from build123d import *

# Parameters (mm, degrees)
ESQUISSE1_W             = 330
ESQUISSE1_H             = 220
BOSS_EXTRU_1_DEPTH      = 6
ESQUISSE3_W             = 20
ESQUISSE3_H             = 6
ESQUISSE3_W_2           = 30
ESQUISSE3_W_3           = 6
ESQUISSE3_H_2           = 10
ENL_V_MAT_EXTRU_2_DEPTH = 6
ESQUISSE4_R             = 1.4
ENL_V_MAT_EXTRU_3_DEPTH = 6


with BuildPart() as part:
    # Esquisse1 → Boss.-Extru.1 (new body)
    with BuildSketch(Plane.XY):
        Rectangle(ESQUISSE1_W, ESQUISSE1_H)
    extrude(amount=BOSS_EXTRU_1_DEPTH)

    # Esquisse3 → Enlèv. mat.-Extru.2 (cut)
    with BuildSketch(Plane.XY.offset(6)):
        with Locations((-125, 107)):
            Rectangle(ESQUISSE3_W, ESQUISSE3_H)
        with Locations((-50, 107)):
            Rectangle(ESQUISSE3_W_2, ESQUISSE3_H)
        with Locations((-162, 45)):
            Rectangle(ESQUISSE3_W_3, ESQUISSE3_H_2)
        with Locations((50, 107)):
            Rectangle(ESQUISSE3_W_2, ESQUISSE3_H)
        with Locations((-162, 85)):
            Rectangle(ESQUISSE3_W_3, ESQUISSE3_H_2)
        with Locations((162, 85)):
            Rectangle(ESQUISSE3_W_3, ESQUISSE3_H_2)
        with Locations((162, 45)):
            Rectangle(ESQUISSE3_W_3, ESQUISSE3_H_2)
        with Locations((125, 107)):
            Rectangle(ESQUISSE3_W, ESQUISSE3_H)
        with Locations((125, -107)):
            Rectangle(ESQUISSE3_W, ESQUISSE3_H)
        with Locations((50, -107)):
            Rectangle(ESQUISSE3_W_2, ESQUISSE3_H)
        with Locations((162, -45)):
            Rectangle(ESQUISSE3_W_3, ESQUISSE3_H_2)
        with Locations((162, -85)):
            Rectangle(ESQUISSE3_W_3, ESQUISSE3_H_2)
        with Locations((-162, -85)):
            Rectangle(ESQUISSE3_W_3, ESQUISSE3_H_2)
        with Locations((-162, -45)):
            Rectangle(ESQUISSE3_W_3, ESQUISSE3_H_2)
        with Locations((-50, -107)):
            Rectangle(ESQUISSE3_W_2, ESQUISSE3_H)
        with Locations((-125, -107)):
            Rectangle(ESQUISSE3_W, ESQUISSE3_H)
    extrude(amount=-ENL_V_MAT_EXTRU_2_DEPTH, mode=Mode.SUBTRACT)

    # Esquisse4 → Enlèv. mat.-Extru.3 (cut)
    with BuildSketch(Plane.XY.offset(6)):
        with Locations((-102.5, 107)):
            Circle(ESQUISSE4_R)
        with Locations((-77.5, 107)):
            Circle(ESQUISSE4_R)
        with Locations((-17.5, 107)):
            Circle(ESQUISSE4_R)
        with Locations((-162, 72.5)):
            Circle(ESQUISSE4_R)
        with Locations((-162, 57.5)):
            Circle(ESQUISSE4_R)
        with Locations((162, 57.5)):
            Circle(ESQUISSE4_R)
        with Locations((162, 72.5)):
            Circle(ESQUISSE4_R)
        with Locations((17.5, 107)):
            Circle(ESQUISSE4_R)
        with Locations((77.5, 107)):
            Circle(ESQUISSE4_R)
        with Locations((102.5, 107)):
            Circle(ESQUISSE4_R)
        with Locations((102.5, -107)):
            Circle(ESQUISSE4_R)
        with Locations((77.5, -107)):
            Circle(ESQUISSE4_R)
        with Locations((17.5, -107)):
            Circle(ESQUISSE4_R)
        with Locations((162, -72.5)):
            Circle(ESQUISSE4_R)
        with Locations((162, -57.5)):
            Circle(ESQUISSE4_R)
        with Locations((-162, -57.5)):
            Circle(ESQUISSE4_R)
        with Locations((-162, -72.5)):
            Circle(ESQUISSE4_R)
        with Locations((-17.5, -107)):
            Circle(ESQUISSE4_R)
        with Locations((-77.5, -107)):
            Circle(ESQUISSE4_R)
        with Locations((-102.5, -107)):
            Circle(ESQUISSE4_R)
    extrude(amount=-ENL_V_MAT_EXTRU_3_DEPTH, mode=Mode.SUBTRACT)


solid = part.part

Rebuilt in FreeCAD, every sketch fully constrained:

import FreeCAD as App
import Part
import Sketcher
from FreeCAD import Vector
Q = App.Units.Quantity

doc = App.newDocument("Part")
body = doc.addObject("PartDesign::Body", "Body")

sketch1 = body.newObject("Sketcher::SketchObject", "Sketch")
sketch1.AttachmentSupport = (doc.getObject("XY_Plane"), [""])
sketch1.MapMode = "FlatFace"
sketch1.addGeometry([
    Part.LineSegment(Vector(-165, 110, 0), Vector(-165, -110, 0)),
    Part.LineSegment(Vector(-165, -110, 0), Vector(165, -110, 0)),
    Part.LineSegment(Vector(165, -110, 0), Vector(165, 110, 0)),
    Part.LineSegment(Vector(165, 110, 0), Vector(-165, 110, 0)),
], False)
sketch1.addConstraint([
    Sketcher.Constraint("Coincident", 0, 2, 1, 1),
    Sketcher.Constraint("Coincident", 1, 2, 2, 1),
    Sketcher.Constraint("Coincident", 2, 2, 3, 1),
    Sketcher.Constraint("Coincident", 3, 2, 0, 1),
    Sketcher.Constraint("Vertical", 0),
    Sketcher.Constraint("Horizontal", 1),
    Sketcher.Constraint("Vertical", 2),
    Sketcher.Constraint("Horizontal", 3),
    Sketcher.Constraint("Symmetric", 0, 2, 2, 2, -1, 1),
    Sketcher.Constraint("DistanceX", 1, 1, 1, 2, Q("330 mm")),
    Sketcher.Constraint("DistanceY", 0, 2, 0, 1, Q("220 mm")),
])
pad1 = body.newObject("PartDesign::Pad", "Pad")
pad1.Profile = sketch1
pad1.Length = 6

sketch2 = body.newObject("Sketcher::SketchObject", "Sketch001")
sketch2.AttachmentSupport = (doc.getObject("XY_Plane"), [""])
sketch2.MapMode = "FlatFace"
sketch2.AttachmentOffset = App.Placement(Vector(0, 0, 6), App.Rotation())
sketch2.addGeometry([
    Part.LineSegment(Vector(-135, 110, 0), Vector(-135, 104, 0)),
    Part.LineSegment(Vector(-135, 104, 0), Vector(-115, 104, 0)),
    Part.LineSegment(Vector(-115, 104, 0), Vector(-115, 110, 0)),
    Part.LineSegment(Vector(-115, 110, 0), Vector(-135, 110, 0)),
    Part.LineSegment(Vector(-65, 110, 0), Vector(-65, 104, 0)),
    Part.LineSegment(Vector(-65, 104, 0), Vector(-35, 104, 0)),
    Part.LineSegment(Vector(-35, 104, 0), Vector(-35, 110, 0)),
    Part.LineSegment(Vector(-35, 110, 0), Vector(-65, 110, 0)),
    Part.LineSegment(Vector(-165, 50, 0), Vector(-165, 40, 0)),
    Part.LineSegment(Vector(-165, 40, 0), Vector(-159, 40, 0)),
    Part.LineSegment(Vector(-159, 40, 0), Vector(-159, 50, 0)),
    Part.LineSegment(Vector(-159, 50, 0), Vector(-165, 50, 0)),
    Part.LineSegment(Vector(35, 110, 0), Vector(35, 104, 0)),
    Part.LineSegment(Vector(35, 104, 0), Vector(65, 104, 0)),
    Part.LineSegment(Vector(65, 104, 0), Vector(65, 110, 0)),
    Part.LineSegment(Vector(65, 110, 0), Vector(35, 110, 0)),
    Part.LineSegment(Vector(-165, 90, 0), Vector(-165, 80, 0)),
    Part.LineSegment(Vector(-165, 80, 0), Vector(-159, 80, 0)),
    Part.LineSegment(Vector(-159, 80, 0), Vector(-159, 90, 0)),
    Part.LineSegment(Vector(-159, 90, 0), Vector(-165, 90, 0)),
    Part.LineSegment(Vector(159, 90, 0), Vector(159, 80, 0)),
    Part.LineSegment(Vector(159, 80, 0), Vector(165, 80, 0)),
    Part.LineSegment(Vector(165, 80, 0), Vector(165, 90, 0)),
    Part.LineSegment(Vector(165, 90, 0), Vector(159, 90, 0)),
    Part.LineSegment(Vector(159, 50, 0), Vector(159, 40, 0)),
    Part.LineSegment(Vector(159, 40, 0), Vector(165, 40, 0)),
    Part.LineSegment(Vector(165, 40, 0), Vector(165, 50, 0)),
    Part.LineSegment(Vector(165, 50, 0), Vector(159, 50, 0)),
    Part.LineSegment(Vector(115, 110, 0), Vector(115, 104, 0)),
    Part.LineSegment(Vector(115, 104, 0), Vector(135, 104, 0)),
    Part.LineSegment(Vector(135, 104, 0), Vector(135, 110, 0)),
    Part.LineSegment(Vector(135, 110, 0), Vector(115, 110, 0)),
    Part.LineSegment(Vector(115, -104, 0), Vector(115, -110, 0)),
    Part.LineSegment(Vector(115, -110, 0), Vector(135, -110, 0)),
    Part.LineSegment(Vector(135, -110, 0), Vector(135, -104, 0)),
    Part.LineSegment(Vector(135, -104, 0), Vector(115, -104, 0)),
    Part.LineSegment(Vector(35, -104, 0), Vector(35, -110, 0)),
    Part.LineSegment(Vector(35, -110, 0), Vector(65, -110, 0)),
    Part.LineSegment(Vector(65, -110, 0), Vector(65, -104, 0)),
    Part.LineSegment(Vector(65, -104, 0), Vector(35, -104, 0)),
    Part.LineSegment(Vector(159, -40, 0), Vector(159, -50, 0)),
    Part.LineSegment(Vector(159, -50, 0), Vector(165, -50, 0)),
    Part.LineSegment(Vector(165, -50, 0), Vector(165, -40, 0)),
    Part.LineSegment(Vector(165, -40, 0), Vector(159, -40, 0)),
    Part.LineSegment(Vector(159, -80, 0), Vector(159, -90, 0)),
    Part.LineSegment(Vector(159, -90, 0), Vector(165, -90, 0)),
    Part.LineSegment(Vector(165, -90, 0), Vector(165, -80, 0)),
    Part.LineSegment(Vector(165, -80, 0), Vector(159, -80, 0)),
    Part.LineSegment(Vector(-165, -80, 0), Vector(-165, -90, 0)),
    Part.LineSegment(Vector(-165, -90, 0), Vector(-159, -90, 0)),
    Part.LineSegment(Vector(-159, -90, 0), Vector(-159, -80, 0)),
    Part.LineSegment(Vector(-159, -80, 0), Vector(-165, -80, 0)),
    Part.LineSegment(Vector(-165, -40, 0), Vector(-165, -50, 0)),
    Part.LineSegment(Vector(-165, -50, 0), Vector(-159, -50, 0)),
    Part.LineSegment(Vector(-159, -50, 0), Vector(-159, -40, 0)),
    Part.LineSegment(Vector(-159, -40, 0), Vector(-165, -40, 0)),
    Part.LineSegment(Vector(-65, -104, 0), Vector(-65, -110, 0)),
    Part.LineSegment(Vector(-65, -110, 0), Vector(-35, -110, 0)),
    Part.LineSegment(Vector(-35, -110, 0), Vector(-35, -104, 0)),
    Part.LineSegment(Vector(-35, -104, 0), Vector(-65, -104, 0)),
    Part.LineSegment(Vector(-135, -104, 0), Vector(-135, -110, 0)),
    Part.LineSegment(Vector(-135, -110, 0), Vector(-115, -110, 0)),
    Part.LineSegment(Vector(-115, -110, 0), Vector(-115, -104, 0)),
    Part.LineSegment(Vector(-115, -104, 0), Vector(-135, -104, 0)),
], False)
sketch2.addConstraint([
    Sketcher.Constraint("Coincident", 0, 2, 1, 1),
    Sketcher.Constraint("Coincident", 1, 2, 2, 1),
    Sketcher.Constraint("Coincident", 2, 2, 3, 1),
    Sketcher.Constraint("Coincident", 3, 2, 0, 1),
    Sketcher.Constraint("Coincident", 4, 2, 5, 1),
    Sketcher.Constraint("Coincident", 5, 2, 6, 1),
    Sketcher.Constraint("Coincident", 6, 2, 7, 1),
    Sketcher.Constraint("Coincident", 7, 2, 4, 1),
    Sketcher.Constraint("Coincident", 8, 2, 9, 1),
    Sketcher.Constraint("Coincident", 9, 2, 10, 1),
    Sketcher.Constraint("Coincident", 10, 2, 11, 1),
    Sketcher.Constraint("Coincident", 11, 2, 8, 1),
    Sketcher.Constraint("Coincident", 12, 2, 13, 1),
    Sketcher.Constraint("Coincident", 13, 2, 14, 1),
    Sketcher.Constraint("Coincident", 14, 2, 15, 1),
    Sketcher.Constraint("Coincident", 15, 2, 12, 1),
    Sketcher.Constraint("Coincident", 16, 2, 17, 1),
    Sketcher.Constraint("Coincident", 17, 2, 18, 1),
    Sketcher.Constraint("Coincident", 18, 2, 19, 1),
    Sketcher.Constraint("Coincident", 19, 2, 16, 1),
    Sketcher.Constraint("Coincident", 20, 2, 21, 1),
    Sketcher.Constraint("Coincident", 21, 2, 22, 1),
    Sketcher.Constraint("Coincident", 22, 2, 23, 1),
    Sketcher.Constraint("Coincident", 23, 2, 20, 1),
    Sketcher.Constraint("Coincident", 24, 2, 25, 1),
    Sketcher.Constraint("Coincident", 25, 2, 26, 1),
    Sketcher.Constraint("Coincident", 26, 2, 27, 1),
    Sketcher.Constraint("Coincident", 27, 2, 24, 1),
    Sketcher.Constraint("Coincident", 28, 2, 29, 1),
    Sketcher.Constraint("Coincident", 29, 2, 30, 1),
    Sketcher.Constraint("Coincident", 30, 2, 31, 1),
    Sketcher.Constraint("Coincident", 31, 2, 28, 1),
    Sketcher.Constraint("Coincident", 32, 2, 33, 1),
    Sketcher.Constraint("Coincident", 33, 2, 34, 1),
    Sketcher.Constraint("Coincident", 34, 2, 35, 1),
    Sketcher.Constraint("Coincident", 35, 2, 32, 1),
    Sketcher.Constraint("Coincident", 36, 2, 37, 1),
    Sketcher.Constraint("Coincident", 37, 2, 38, 1),
    Sketcher.Constraint("Coincident", 38, 2, 39, 1),
    Sketcher.Constraint("Coincident", 39, 2, 36, 1),
    Sketcher.Constraint("Coincident", 40, 2, 41, 1),
    Sketcher.Constraint("Coincident", 41, 2, 42, 1),
    Sketcher.Constraint("Coincident", 42, 2, 43, 1),
    Sketcher.Constraint("Coincident", 43, 2, 40, 1),
    Sketcher.Constraint("Coincident", 44, 2, 45, 1),
    Sketcher.Constraint("Coincident", 45, 2, 46, 1),
    Sketcher.Constraint("Coincident", 46, 2, 47, 1),
    Sketcher.Constraint("Coincident", 47, 2, 44, 1),
    Sketcher.Constraint("Coincident", 48, 2, 49, 1),
    Sketcher.Constraint("Coincident", 49, 2, 50, 1),
    Sketcher.Constraint("Coincident", 50, 2, 51, 1),
    Sketcher.Constraint("Coincident", 51, 2, 48, 1),
    Sketcher.Constraint("Coincident", 52, 2, 53, 1),
    Sketcher.Constraint("Coincident", 53, 2, 54, 1),
    Sketcher.Constraint("Coincident", 54, 2, 55, 1),
    Sketcher.Constraint("Coincident", 55, 2, 52, 1),
    Sketcher.Constraint("Coincident", 56, 2, 57, 1),
    Sketcher.Constraint("Coincident", 57, 2, 58, 1),
    Sketcher.Constraint("Coincident", 58, 2, 59, 1),
    Sketcher.Constraint("Coincident", 59, 2, 56, 1),
    Sketcher.Constraint("Coincident", 60, 2, 61, 1),
    Sketcher.Constraint("Coincident", 61, 2, 62, 1),
    Sketcher.Constraint("Coincident", 62, 2, 63, 1),
    Sketcher.Constraint("Coincident", 63, 2, 60, 1),
    Sketcher.Constraint("Vertical", 0),
    Sketcher.Constraint("Horizontal", 1),
    Sketcher.Constraint("Vertical", 2),
    Sketcher.Constraint("Horizontal", 3),
    Sketcher.Constraint("Vertical", 4),
    Sketcher.Constraint("Horizontal", 5),
    Sketcher.Constraint("Vertical", 6),
    Sketcher.Constraint("Horizontal", 7),
    Sketcher.Constraint("Vertical", 8),
    Sketcher.Constraint("Horizontal", 9),
    Sketcher.Constraint("Vertical", 10),
    Sketcher.Constraint("Horizontal", 11),
    Sketcher.Constraint("Vertical", 12),
    Sketcher.Constraint("Horizontal", 13),
    Sketcher.Constraint("Vertical", 14),
    Sketcher.Constraint("Horizontal", 15),
    Sketcher.Constraint("Vertical", 16),
    Sketcher.Constraint("Horizontal", 17),
    Sketcher.Constraint("Vertical", 18),
    Sketcher.Constraint("Horizontal", 19),
    Sketcher.Constraint("Vertical", 20),
    Sketcher.Constraint("Horizontal", 21),
    Sketcher.Constraint("Vertical", 22),
    Sketcher.Constraint("Horizontal", 23),
    Sketcher.Constraint("Vertical", 24),
    Sketcher.Constraint("Horizontal", 25),
    Sketcher.Constraint("Vertical", 26),
    Sketcher.Constraint("Horizontal", 27),
    Sketcher.Constraint("Vertical", 28),
    Sketcher.Constraint("Horizontal", 29),
    Sketcher.Constraint("Vertical", 30),
    Sketcher.Constraint("Horizontal", 31),
    Sketcher.Constraint("Vertical", 32),
    Sketcher.Constraint("Horizontal", 33),
    Sketcher.Constraint("Vertical", 34),
    Sketcher.Constraint("Horizontal", 35),
    Sketcher.Constraint("Vertical", 36),
    Sketcher.Constraint("Horizontal", 37),
    Sketcher.Constraint("Vertical", 38),
    Sketcher.Constraint("Horizontal", 39),
    Sketcher.Constraint("Vertical", 40),
    Sketcher.Constraint("Horizontal", 41),
    Sketcher.Constraint("Vertical", 42),
    Sketcher.Constraint("Horizontal", 43),
    Sketcher.Constraint("Vertical", 44),
    Sketcher.Constraint("Horizontal", 45),
    Sketcher.Constraint("Vertical", 46),
    Sketcher.Constraint("Horizontal", 47),
    Sketcher.Constraint("Vertical", 48),
    Sketcher.Constraint("Horizontal", 49),
    Sketcher.Constraint("Vertical", 50),
    Sketcher.Constraint("Horizontal", 51),
    Sketcher.Constraint("Vertical", 52),
    Sketcher.Constraint("Horizontal", 53),
    Sketcher.Constraint("Vertical", 54),
    Sketcher.Constraint("Horizontal", 55),
    Sketcher.Constraint("Vertical", 56),
    Sketcher.Constraint("Horizontal", 57),
    Sketcher.Constraint("Vertical", 58),
    Sketcher.Constraint("Horizontal", 59),
    Sketcher.Constraint("Vertical", 60),
    Sketcher.Constraint("Horizontal", 61),
    Sketcher.Constraint("Vertical", 62),
    Sketcher.Constraint("Horizontal", 63),
    Sketcher.Constraint("Symmetric", 2, 2, 32, 2, -1, 1),
    Sketcher.Constraint("Symmetric", 0, 2, 34, 2, -1, 1),
    Sketcher.Constraint("Symmetric", 6, 2, 36, 2, -1, 1),
    Sketcher.Constraint("Symmetric", 4, 2, 38, 2, -1, 1),
    Sketcher.Constraint("Symmetric", 10, 2, 40, 2, -1, 1),
    Sketcher.Constraint("Symmetric", 8, 2, 42, 2, -1, 1),
    Sketcher.Constraint("Symmetric", 18, 2, 44, 2, -1, 1),
    Sketcher.Constraint("Symmetric", 16, 2, 46, 2, -1, 1),
    Sketcher.Constraint("Symmetric", 22, 2, 48, 2, -1, 1),
    Sketcher.Constraint("Symmetric", 20, 2, 50, 2, -1, 1),
    Sketcher.Constraint("Symmetric", 26, 2, 52, 2, -1, 1),
    Sketcher.Constraint("Symmetric", 24, 2, 54, 2, -1, 1),
    Sketcher.Constraint("Symmetric", 14, 2, 56, 2, -1, 1),
    Sketcher.Constraint("Symmetric", 12, 2, 58, 2, -1, 1),
    Sketcher.Constraint("Symmetric", 30, 2, 60, 2, -1, 1),
    Sketcher.Constraint("Symmetric", 28, 2, 62, 2, -1, 1),
    Sketcher.Constraint("Symmetric", 5, 2, 12, 2, -2),
    Sketcher.Constraint("Symmetric", 7, 2, 14, 2, -2),
    Sketcher.Constraint("Symmetric", 17, 2, 20, 2, -2),
    Sketcher.Constraint("Symmetric", 19, 2, 22, 2, -2),
    Sketcher.Constraint("Symmetric", 9, 2, 24, 2, -2),
    Sketcher.Constraint("Symmetric", 11, 2, 26, 2, -2),
    Sketcher.Constraint("Symmetric", 1, 2, 28, 2, -2),
    Sketcher.Constraint("Symmetric", 3, 2, 30, 2, -2),
    Sketcher.Constraint("Horizontal", 1, 2, 4, 2),
    Sketcher.Constraint("Horizontal", 3, 2, 6, 2),
    Sketcher.Constraint("Vertical", 11, 2, 16, 2),
    Sketcher.Constraint("Vertical", 10, 2, 17, 2),
    Sketcher.Constraint("Equal", 55, 0),
    Sketcher.Constraint("Equal", 10, 16),
    Sketcher.Constraint("DistanceX", 1, 1, 1, 2, Q("20 mm")),
    Sketcher.Constraint("DistanceX", 5, 1, 5, 2, Q("30 mm")),
    Sketcher.Constraint("DistanceX", 9, 1, 9, 2, Q("6 mm")),
    Sketcher.Constraint("DistanceY", 8, 2, 8, 1, Q("10 mm")),
    Sketcher.Constraint("DistanceX", 0, 2, -1, 1, Q("135 mm")),
    Sketcher.Constraint("DistanceY", -1, 1, 0, 2, Q("104 mm")),
    Sketcher.Constraint("DistanceX", 4, 2, -1, 1, Q("65 mm")),
    Sketcher.Constraint("DistanceX", 8, 2, -1, 1, Q("165 mm")),
    Sketcher.Constraint("DistanceY", -1, 1, 8, 2, Q("40 mm")),
    Sketcher.Constraint("DistanceY", -1, 1, 16, 2, Q("80 mm")),
])
pocket1 = body.newObject("PartDesign::Pocket", "Pocket")
pocket1.Profile = sketch2
pocket1.Length = 6

sketch3 = body.newObject("Sketcher::SketchObject", "Sketch002")
sketch3.AttachmentSupport = (doc.getObject("XY_Plane"), [""])
sketch3.MapMode = "FlatFace"
sketch3.AttachmentOffset = App.Placement(Vector(0, 0, 6), App.Rotation())
sketch3.addGeometry([
    Part.Circle(Vector(-102.5, 107, 0), Vector(0, 0, 1), 1.4),
    Part.Circle(Vector(-77.5, 107, 0), Vector(0, 0, 1), 1.4),
    Part.Circle(Vector(-17.5, 107, 0), Vector(0, 0, 1), 1.4),
    Part.Circle(Vector(-162, 72.5, 0), Vector(0, 0, 1), 1.4),
    Part.Circle(Vector(-162, 57.5, 0), Vector(0, 0, 1), 1.4),
    Part.Circle(Vector(162, 57.5, 0), Vector(0, 0, 1), 1.4),
    Part.Circle(Vector(162, 72.5, 0), Vector(0, 0, 1), 1.4),
    Part.Circle(Vector(17.5, 107, 0), Vector(0, 0, 1), 1.4),
    Part.Circle(Vector(77.5, 107, 0), Vector(0, 0, 1), 1.4),
    Part.Circle(Vector(102.5, 107, 0), Vector(0, 0, 1), 1.4),
    Part.Circle(Vector(102.5, -107, 0), Vector(0, 0, 1), 1.4),
    Part.Circle(Vector(77.5, -107, 0), Vector(0, 0, 1), 1.4),
    Part.Circle(Vector(17.5, -107, 0), Vector(0, 0, 1), 1.4),
    Part.Circle(Vector(162, -72.5, 0), Vector(0, 0, 1), 1.4),
    Part.Circle(Vector(162, -57.5, 0), Vector(0, 0, 1), 1.4),
    Part.Circle(Vector(-162, -57.5, 0), Vector(0, 0, 1), 1.4),
    Part.Circle(Vector(-162, -72.5, 0), Vector(0, 0, 1), 1.4),
    Part.Circle(Vector(-17.5, -107, 0), Vector(0, 0, 1), 1.4),
    Part.Circle(Vector(-77.5, -107, 0), Vector(0, 0, 1), 1.4),
    Part.Circle(Vector(-102.5, -107, 0), Vector(0, 0, 1), 1.4),
], False)
sketch3.addConstraint([
    Sketcher.Constraint("Equal", 0, 1),
    Sketcher.Constraint("Equal", 1, 2),
    Sketcher.Constraint("Equal", 2, 3),
    Sketcher.Constraint("Equal", 3, 4),
    Sketcher.Constraint("Equal", 4, 5),
    Sketcher.Constraint("Equal", 5, 6),
    Sketcher.Constraint("Equal", 6, 7),
    Sketcher.Constraint("Equal", 7, 8),
    Sketcher.Constraint("Equal", 8, 9),
    Sketcher.Constraint("Equal", 9, 10),
    Sketcher.Constraint("Equal", 10, 11),
    Sketcher.Constraint("Equal", 11, 12),
    Sketcher.Constraint("Equal", 12, 13),
    Sketcher.Constraint("Equal", 13, 14),
    Sketcher.Constraint("Equal", 14, 15),
    Sketcher.Constraint("Equal", 15, 16),
    Sketcher.Constraint("Equal", 16, 17),
    Sketcher.Constraint("Equal", 17, 18),
    Sketcher.Constraint("Equal", 18, 19),
    Sketcher.Constraint("Symmetric", 0, 3, 10, 3, -1, 1),
    Sketcher.Constraint("Symmetric", 1, 3, 11, 3, -1, 1),
    Sketcher.Constraint("Symmetric", 2, 3, 12, 3, -1, 1),
    Sketcher.Constraint("Symmetric", 3, 3, 13, 3, -1, 1),
    Sketcher.Constraint("Symmetric", 4, 3, 14, 3, -1, 1),
    Sketcher.Constraint("Symmetric", 5, 3, 15, 3, -1, 1),
    Sketcher.Constraint("Symmetric", 6, 3, 16, 3, -1, 1),
    Sketcher.Constraint("Symmetric", 7, 3, 17, 3, -1, 1),
    Sketcher.Constraint("Symmetric", 8, 3, 18, 3, -1, 1),
    Sketcher.Constraint("Symmetric", 9, 3, 19, 3, -1, 1),
    Sketcher.Constraint("Symmetric", 4, 3, 5, 3, -2),
    Sketcher.Constraint("Symmetric", 3, 3, 6, 3, -2),
    Sketcher.Constraint("Symmetric", 2, 3, 7, 3, -2),
    Sketcher.Constraint("Symmetric", 1, 3, 8, 3, -2),
    Sketcher.Constraint("Symmetric", 0, 3, 9, 3, -2),
    Sketcher.Constraint("Horizontal", 0, 3, 1, 3),
    Sketcher.Constraint("Horizontal", 1, 3, 2, 3),
    Sketcher.Constraint("Vertical", 3, 3, 4, 3),
    Sketcher.Constraint("Diameter", 0, Q("2.8 mm")),
    Sketcher.Constraint("DistanceY", -1, 1, 0, 3, Q("107 mm")),
    Sketcher.Constraint("DistanceX", 3, 3, -1, 1, Q("162 mm")),
    Sketcher.Constraint("DistanceX", 0, 3, 1, 3, Q("25 mm")),
    Sketcher.Constraint("DistanceX", 1, 3, 2, 3, Q("60 mm")),
    Sketcher.Constraint("DistanceY", 4, 3, 3, 3, Q("15 mm")),
    Sketcher.Constraint("DistanceX", 2, 3, 7, 3, Q("35 mm")),
    Sketcher.Constraint("DistanceY", 13, 3, 5, 3, Q("130 mm")),
])
pocket2 = body.newObject("PartDesign::Pocket", "Pocket001")
pocket2.Profile = sketch3
pocket2.Length = 6

doc.recompute()
